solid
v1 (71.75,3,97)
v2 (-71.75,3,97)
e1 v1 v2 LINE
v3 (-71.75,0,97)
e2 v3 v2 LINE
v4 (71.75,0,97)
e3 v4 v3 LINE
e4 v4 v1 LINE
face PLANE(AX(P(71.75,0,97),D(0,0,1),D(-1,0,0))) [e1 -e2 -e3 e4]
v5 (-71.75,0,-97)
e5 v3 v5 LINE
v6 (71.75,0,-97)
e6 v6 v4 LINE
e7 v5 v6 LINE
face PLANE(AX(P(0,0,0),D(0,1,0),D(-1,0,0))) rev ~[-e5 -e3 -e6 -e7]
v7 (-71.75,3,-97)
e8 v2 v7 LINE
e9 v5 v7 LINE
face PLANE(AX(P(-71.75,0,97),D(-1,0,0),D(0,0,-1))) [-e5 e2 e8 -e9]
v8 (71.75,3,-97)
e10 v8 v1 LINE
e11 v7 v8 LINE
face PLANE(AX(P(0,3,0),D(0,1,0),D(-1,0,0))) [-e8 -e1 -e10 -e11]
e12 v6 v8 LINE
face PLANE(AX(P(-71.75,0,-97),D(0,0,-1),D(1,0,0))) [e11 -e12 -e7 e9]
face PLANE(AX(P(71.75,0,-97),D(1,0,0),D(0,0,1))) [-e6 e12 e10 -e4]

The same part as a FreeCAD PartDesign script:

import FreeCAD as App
import Part
import Sketcher

V = App.Vector
Q = App.Units.Quantity


def add_polygon(sketch, points):
    """Adds a closed chain of lines whose ends are joined by coincident constraints."""
    first, n = sketch.GeometryCount, len(points)
    for a, b in zip(points, points[1:] + points[:1]):
        sketch.addGeometry(Part.LineSegment(App.Vector(*a, 0), App.Vector(*b, 0)), False)
    for i in range(n):
        sketch.addConstraint(Sketcher.Constraint("Coincident", first + i, 2, first + (i + 1) % n, 1))

doc = App.newDocument("Part")
body = doc.addObject("PartDesign::Body", "Body")

# Sketch on XZ plane
sketch1 = body.newObject("Sketcher::SketchObject", "Sketch")
sketch1.AttachmentSupport = (doc.getObject("XZ_Plane"), [""])
sketch1.MapMode = "FlatFace"
add_polygon(sketch1, [(-72, 97), (72, 97), (72, -97), (-72, -97)])  # lines 0-3
sketch1.addConstraint(Sketcher.Constraint("Horizontal", 0))
sketch1.addConstraint(Sketcher.Constraint("Vertical", 1))
sketch1.addConstraint(Sketcher.Constraint("Horizontal", 2))
sketch1.addConstraint(Sketcher.Constraint("Vertical", 3))
sketch1.addConstraint(Sketcher.Constraint("Symmetric", 0, 2, 2, 2, -1, 1))
sketch1.addConstraint(Sketcher.Constraint("DistanceY", 1, 2, 1, 1, Q("194 mm")))
sketch1.addConstraint(Sketcher.Constraint("DistanceX", 0, 1, 0, 2, Q("143.5 mm")))
pad1 = body.newObject("PartDesign::Pad", "Pad")
pad1.Profile = sketch1
pad1.Length = 3
pad1.Reversed = True

doc.recompute()
